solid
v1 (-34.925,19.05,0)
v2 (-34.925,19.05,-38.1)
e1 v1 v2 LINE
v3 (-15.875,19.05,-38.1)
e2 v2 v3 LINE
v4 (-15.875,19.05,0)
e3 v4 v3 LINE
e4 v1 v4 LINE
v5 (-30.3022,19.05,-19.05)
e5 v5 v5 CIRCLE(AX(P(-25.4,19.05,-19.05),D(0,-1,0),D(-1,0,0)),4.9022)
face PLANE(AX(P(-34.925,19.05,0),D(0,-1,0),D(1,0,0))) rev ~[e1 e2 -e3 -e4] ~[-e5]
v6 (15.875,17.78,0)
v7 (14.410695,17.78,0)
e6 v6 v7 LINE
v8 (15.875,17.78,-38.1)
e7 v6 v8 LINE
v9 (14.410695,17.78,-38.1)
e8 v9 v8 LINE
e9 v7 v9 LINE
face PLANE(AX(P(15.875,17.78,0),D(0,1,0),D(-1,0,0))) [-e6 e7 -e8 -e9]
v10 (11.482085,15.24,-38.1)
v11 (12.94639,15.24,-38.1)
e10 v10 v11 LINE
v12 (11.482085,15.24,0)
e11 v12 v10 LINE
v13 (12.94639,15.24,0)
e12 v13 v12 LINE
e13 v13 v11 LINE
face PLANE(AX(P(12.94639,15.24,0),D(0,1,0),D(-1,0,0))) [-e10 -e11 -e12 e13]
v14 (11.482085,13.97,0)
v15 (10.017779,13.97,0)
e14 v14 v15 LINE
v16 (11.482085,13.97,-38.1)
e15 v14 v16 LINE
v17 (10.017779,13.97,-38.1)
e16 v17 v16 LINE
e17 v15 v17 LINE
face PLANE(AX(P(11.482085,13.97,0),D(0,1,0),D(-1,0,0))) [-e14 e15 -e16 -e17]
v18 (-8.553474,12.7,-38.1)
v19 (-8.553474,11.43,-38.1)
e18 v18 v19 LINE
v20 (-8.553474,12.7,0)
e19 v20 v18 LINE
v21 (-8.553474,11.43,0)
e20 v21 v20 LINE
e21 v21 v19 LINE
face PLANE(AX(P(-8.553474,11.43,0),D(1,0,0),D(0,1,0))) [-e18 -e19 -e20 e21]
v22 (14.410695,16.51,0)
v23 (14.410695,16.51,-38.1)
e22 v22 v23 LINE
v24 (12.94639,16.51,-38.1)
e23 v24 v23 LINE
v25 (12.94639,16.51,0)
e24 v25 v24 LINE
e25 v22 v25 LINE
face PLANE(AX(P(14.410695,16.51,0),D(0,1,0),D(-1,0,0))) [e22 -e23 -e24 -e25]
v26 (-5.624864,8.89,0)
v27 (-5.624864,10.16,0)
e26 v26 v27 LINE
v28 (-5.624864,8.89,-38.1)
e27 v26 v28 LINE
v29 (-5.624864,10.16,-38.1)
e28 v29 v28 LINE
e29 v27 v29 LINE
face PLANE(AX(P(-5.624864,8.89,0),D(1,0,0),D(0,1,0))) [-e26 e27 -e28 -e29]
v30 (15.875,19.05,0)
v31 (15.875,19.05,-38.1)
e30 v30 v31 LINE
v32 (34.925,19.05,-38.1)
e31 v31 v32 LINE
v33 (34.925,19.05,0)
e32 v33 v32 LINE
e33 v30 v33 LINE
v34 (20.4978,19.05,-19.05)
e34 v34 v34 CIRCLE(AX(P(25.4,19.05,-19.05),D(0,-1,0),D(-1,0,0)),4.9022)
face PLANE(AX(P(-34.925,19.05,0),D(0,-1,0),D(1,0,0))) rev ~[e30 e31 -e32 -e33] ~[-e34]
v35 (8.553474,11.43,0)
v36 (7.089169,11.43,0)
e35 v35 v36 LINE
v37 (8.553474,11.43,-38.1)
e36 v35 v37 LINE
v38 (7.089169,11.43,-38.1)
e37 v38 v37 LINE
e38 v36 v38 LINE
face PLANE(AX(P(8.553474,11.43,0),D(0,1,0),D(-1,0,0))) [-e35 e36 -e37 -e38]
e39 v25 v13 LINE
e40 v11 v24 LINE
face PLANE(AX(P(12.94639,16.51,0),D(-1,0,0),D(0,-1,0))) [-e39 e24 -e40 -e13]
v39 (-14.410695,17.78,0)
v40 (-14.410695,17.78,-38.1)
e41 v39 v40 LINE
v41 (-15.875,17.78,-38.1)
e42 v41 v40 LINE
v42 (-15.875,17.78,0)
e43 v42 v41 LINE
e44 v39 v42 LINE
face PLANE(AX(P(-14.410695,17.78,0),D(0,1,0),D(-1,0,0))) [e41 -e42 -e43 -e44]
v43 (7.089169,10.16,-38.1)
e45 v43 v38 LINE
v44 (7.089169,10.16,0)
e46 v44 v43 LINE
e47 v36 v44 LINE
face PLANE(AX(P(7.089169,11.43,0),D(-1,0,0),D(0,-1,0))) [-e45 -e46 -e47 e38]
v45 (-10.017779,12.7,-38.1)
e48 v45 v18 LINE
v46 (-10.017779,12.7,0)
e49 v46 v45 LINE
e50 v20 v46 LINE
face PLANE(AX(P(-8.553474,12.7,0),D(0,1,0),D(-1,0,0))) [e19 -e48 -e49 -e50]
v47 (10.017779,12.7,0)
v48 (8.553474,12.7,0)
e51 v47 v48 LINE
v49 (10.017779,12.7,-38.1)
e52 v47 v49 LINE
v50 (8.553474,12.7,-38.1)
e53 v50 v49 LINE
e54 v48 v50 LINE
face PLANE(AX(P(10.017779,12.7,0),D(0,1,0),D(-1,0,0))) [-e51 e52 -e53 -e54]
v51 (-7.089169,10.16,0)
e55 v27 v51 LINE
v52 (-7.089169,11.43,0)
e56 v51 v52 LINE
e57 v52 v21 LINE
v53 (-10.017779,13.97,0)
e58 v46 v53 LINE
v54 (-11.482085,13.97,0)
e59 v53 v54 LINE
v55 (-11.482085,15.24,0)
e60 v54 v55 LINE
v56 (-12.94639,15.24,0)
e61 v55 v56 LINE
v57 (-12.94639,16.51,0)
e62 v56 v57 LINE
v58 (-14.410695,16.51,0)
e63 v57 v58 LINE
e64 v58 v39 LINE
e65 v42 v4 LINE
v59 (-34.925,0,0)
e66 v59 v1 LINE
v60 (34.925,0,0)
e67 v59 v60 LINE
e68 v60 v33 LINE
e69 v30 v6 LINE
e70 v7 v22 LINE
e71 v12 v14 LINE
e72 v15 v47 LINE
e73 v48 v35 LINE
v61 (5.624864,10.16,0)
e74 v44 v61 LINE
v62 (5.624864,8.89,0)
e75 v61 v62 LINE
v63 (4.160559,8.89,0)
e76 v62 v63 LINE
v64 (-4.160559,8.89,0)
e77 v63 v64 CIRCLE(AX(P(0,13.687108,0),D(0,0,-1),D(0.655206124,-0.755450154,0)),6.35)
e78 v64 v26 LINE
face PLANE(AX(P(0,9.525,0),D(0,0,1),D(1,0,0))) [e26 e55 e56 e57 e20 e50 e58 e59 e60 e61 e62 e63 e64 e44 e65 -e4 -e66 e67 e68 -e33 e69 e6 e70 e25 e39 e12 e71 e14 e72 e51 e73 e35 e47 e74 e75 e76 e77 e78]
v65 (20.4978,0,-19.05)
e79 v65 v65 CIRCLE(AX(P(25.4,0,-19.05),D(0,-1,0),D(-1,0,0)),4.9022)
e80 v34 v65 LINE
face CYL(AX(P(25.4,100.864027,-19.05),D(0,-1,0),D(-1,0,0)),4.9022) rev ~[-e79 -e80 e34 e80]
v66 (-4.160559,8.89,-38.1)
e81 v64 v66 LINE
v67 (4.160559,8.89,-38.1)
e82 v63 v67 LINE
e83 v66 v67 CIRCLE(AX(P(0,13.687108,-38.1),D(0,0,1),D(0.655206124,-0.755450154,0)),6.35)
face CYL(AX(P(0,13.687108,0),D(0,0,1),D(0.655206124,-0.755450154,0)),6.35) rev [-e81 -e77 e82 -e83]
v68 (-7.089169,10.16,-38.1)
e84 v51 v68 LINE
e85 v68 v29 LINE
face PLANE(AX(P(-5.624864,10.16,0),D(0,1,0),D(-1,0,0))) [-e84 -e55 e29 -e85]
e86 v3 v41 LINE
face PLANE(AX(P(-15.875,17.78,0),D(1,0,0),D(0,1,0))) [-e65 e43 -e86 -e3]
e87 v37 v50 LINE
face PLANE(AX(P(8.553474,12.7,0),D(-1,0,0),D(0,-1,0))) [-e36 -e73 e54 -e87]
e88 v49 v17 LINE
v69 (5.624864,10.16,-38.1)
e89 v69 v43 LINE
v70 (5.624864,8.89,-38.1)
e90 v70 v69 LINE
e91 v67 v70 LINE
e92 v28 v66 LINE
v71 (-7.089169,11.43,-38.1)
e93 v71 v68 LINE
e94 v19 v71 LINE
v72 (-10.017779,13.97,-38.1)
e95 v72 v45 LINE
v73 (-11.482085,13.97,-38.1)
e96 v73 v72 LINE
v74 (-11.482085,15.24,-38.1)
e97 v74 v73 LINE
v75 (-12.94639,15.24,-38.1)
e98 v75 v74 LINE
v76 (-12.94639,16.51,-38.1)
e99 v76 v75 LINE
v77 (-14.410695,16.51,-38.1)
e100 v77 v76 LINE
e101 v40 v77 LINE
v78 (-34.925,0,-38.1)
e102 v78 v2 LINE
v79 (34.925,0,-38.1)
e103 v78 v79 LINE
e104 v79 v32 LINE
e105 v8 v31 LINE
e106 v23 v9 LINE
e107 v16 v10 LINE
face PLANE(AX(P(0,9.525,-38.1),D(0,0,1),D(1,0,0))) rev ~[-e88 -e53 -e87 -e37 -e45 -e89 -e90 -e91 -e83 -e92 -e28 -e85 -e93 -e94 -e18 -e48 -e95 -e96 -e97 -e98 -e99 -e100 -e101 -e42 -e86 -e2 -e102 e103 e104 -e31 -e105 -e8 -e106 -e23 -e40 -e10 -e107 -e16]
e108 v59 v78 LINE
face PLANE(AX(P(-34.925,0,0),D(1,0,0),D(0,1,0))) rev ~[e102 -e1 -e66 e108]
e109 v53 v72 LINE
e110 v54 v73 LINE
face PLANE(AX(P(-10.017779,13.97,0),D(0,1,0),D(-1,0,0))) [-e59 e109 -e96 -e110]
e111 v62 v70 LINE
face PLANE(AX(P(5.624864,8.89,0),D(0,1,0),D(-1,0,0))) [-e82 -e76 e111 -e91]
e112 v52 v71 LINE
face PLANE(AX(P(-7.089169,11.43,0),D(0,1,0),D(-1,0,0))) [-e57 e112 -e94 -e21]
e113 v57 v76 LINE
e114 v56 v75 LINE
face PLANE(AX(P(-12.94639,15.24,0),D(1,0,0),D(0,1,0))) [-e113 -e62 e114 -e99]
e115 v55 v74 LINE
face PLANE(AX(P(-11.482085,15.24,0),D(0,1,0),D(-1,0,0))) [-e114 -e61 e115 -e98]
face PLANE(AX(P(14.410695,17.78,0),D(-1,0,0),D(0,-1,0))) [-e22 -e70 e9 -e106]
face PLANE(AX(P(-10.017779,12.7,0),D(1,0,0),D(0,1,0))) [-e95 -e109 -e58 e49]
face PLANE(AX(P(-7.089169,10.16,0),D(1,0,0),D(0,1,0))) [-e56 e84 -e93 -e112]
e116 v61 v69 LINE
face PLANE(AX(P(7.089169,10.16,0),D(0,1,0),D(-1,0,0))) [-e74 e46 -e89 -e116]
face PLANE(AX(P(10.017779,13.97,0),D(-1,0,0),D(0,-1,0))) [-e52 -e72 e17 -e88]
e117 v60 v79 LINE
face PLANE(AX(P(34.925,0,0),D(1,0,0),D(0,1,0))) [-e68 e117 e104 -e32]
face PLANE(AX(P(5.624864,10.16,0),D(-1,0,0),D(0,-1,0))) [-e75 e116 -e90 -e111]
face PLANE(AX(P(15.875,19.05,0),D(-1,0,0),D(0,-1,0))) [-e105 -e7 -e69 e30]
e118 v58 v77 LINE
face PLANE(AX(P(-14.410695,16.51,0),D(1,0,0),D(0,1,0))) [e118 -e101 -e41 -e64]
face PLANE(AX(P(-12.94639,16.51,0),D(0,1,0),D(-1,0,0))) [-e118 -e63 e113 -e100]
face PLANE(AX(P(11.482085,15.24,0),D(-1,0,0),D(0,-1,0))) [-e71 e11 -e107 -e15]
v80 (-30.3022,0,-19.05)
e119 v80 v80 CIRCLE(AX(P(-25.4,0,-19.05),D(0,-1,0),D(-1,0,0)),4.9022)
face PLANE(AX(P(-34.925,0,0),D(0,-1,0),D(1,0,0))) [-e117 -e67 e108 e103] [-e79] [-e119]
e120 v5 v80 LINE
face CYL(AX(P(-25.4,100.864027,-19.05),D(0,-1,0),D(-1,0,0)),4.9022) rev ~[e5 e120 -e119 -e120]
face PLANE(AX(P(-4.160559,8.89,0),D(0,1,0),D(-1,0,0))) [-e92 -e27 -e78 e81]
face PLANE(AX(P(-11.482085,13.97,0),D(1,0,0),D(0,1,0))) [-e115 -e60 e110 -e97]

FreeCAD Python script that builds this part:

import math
import FreeCAD as App
import Part
import Sketcher
from FreeCAD import Vector
Q = App.Units.Quantity

doc = App.newDocument("Part")
body = doc.addObject("PartDesign::Body", "Body")

# Sketch on XY plane
sketch1 = body.newObject("Sketcher::SketchObject", "Sketch")
sketch1.AttachmentSupport = (doc.getObject("XY_Plane"), [""])
sketch1.MapMode = "FlatFace"
sketch1.addGeometry(Part.LineSegment(Vector(-34.925, 19.05, 0), Vector(-34.925, 0, 0)), False)
sketch1.addGeometry(Part.LineSegment(Vector(-34.925, 0, 0), Vector(34.925, 0, 0)), False)
sketch1.addGeometry(Part.LineSegment(Vector(34.925, 0, 0), Vector(34.925, 19.05, 0)), False)
sketch1.addGeometry(Part.LineSegment(Vector(34.925, 19.05, 0), Vector(-34.925, 19.05, 0)), False)
sketch1.addConstraint(Sketcher.Constraint("Coincident", 0, 2, 1, 1))
sketch1.addConstraint(Sketcher.Constraint("Coincident", 1, 2, 2, 1))
sketch1.addConstraint(Sketcher.Constraint("Coincident", 2, 2, 3, 1))
sketch1.addConstraint(Sketcher.Constraint("Coincident", 3, 2, 0, 1))
sketch1.addConstraint(Sketcher.Constraint("Vertical", 0))
sketch1.addConstraint(Sketcher.Constraint("Horizontal", 1))
sketch1.addConstraint(Sketcher.Constraint("Vertical", 2))
sketch1.addConstraint(Sketcher.Constraint("Horizontal", 3))
sketch1.addConstraint(Sketcher.Constraint("Symmetric", 0, 2, 1, 2, -1, 1))
sketch1.addConstraint(Sketcher.Constraint("DistanceX", 1, 1, 1, 2, Q("2.75 in")))
sketch1.addConstraint(Sketcher.Constraint("DistanceY", 0, 2, 0, 1, Q("0.75 in")))
pad1 = body.newObject("PartDesign::Pad", "Pad")
pad1.Profile = sketch1
pad1.Length = Q("1.5 in")
pad1.Reversed = True

# Sketch on XY plane
sketch2 = body.newObject("Sketcher::SketchObject", "Sketch001")
sketch2.AttachmentSupport = (doc.getObject("XY_Plane"), [""])
sketch2.MapMode = "FlatFace"
sketch2.addGeometry(Part.LineSegment(Vector(15.875, 19.05, 0), Vector(-15.875, 19.05, 0)), False)
sketch2.addGeometry(Part.LineSegment(Vector(-15.875, 19.05, 0), Vector(-15.875, 17.78, 0)), False)
sketch2.addGeometry(Part.LineSegment(Vector(-15.875, 17.78, 0), Vector(-14.410695, 17.78, 0)), False)
sketch2.addGeometry(Part.LineSegment(Vector(-14.410695, 17.78, 0), Vector(-14.410695, 16.51, 0)), False)
sketch2.addGeometry(Part.LineSegment(Vector(-14.410695, 16.51, 0), Vector(-12.94639, 16.51, 0)), False)
sketch2.addGeometry(Part.LineSegment(Vector(-12.94639, 16.51, 0), Vector(-12.94639, 15.24, 0)), False)
sketch2.addGeometry(Part.LineSegment(Vector(-12.94639, 15.24, 0), Vector(-11.482085, 15.24, 0)), False)
sketch2.addGeometry(Part.LineSegment(Vector(-11.482085, 15.24, 0), Vector(-11.482085, 13.97, 0)), False)
sketch2.addGeometry(Part.LineSegment(Vector(-11.482085, 13.97, 0), Vector(-10.017779, 13.97, 0)), False)
sketch2.addGeometry(Part.LineSegment(Vector(-10.017779, 13.97, 0), Vector(-10.017779, 12.7, 0)), False)
sketch2.addGeometry(Part.LineSegment(Vector(-10.017779, 12.7, 0), Vector(-8.553474, 12.7, 0)), False)
sketch2.addGeometry(Part.LineSegment(Vector(-8.553474, 12.7, 0), Vector(-8.553474, 11.43, 0)), False)
sketch2.addGeometry(Part.LineSegment(Vector(-8.553474, 11.43, 0), Vector(-7.089169, 11.43, 0)), False)
sketch2.addGeometry(Part.LineSegment(Vector(-7.089169, 11.43, 0), Vector(-7.089169, 10.16, 0)), False)
sketch2.addGeometry(Part.LineSegment(Vector(-7.089169, 10.16, 0), Vector(-5.624864, 10.16, 0)), False)
sketch2.addGeometry(Part.LineSegment(Vector(-5.624864, 10.16, 0), Vector(-5.624864, 8.89, 0)), False)
sketch2.addGeometry(Part.LineSegment(Vector(-5.624864, 8.89, 0), Vector(-4.160559, 8.89, 0)), False)
sketch2.addGeometry(Part.ArcOfCircle(Part.Circle(Vector(0, 13.687108, 0), Vector(0, 0, 1), 6.35), math.radians(-130.935281), math.radians(-49.064719)), False)
sketch2.addGeometry(Part.LineSegment(Vector(4.160559, 8.89, 0), Vector(5.624864, 8.89, 0)), False)
sketch2.addGeometry(Part.LineSegment(Vector(5.624864, 8.89, 0), Vector(5.624864, 10.16, 0)), False)
sketch2.addGeometry(Part.LineSegment(Vector(5.624864, 10.16, 0), Vector(7.089169, 10.16, 0)), False)
sketch2.addGeometry(Part.LineSegment(Vector(7.089169, 10.16, 0), Vector(7.089169, 11.43, 0)), False)
sketch2.addGeometry(Part.LineSegment(Vector(7.089169, 11.43, 0), Vector(8.553474, 11.43, 0)), False)
sketch2.addGeometry(Part.LineSegment(Vector(8.553474, 11.43, 0), Vector(8.553474, 12.7, 0)), False)
sketch2.addGeometry(Part.LineSegment(Vector(8.553474, 12.7, 0), Vector(10.017779, 12.7, 0)), False)
sketch2.addGeometry(Part.LineSegment(Vector(10.017779, 12.7, 0), Vector(10.017779, 13.97, 0)), False)
sketch2.addGeometry(Part.LineSegment(Vector(10.017779, 13.97, 0), Vector(11.482085, 13.97, 0)), False)
sketch2.addGeometry(Part.LineSegment(Vector(11.482085, 13.97, 0), Vector(11.482085, 15.24, 0)), False)
sketch2.addGeometry(Part.LineSegment(Vector(11.482085, 15.24, 0), Vector(12.94639, 15.24, 0)), False)
sketch2.addGeometry(Part.LineSegment(Vector(12.94639, 15.24, 0), Vector(12.94639, 16.51, 0)), False)
sketch2.addGeometry(Part.LineSegment(Vector(12.94639, 16.51, 0), Vector(14.410695, 16.51, 0)), False)
sketch2.addGeometry(Part.LineSegment(Vector(14.410695, 16.51, 0), Vector(14.410695, 17.78, 0)), False)
sketch2.addGeometry(Part.LineSegment(Vector(14.410695, 17.78, 0), Vector(15.875, 17.78, 0)), False)
sketch2.addGeometry(Part.LineSegment(Vector(15.875, 17.78, 0), Vector(15.875, 19.05, 0)), False)
sketch2.addConstraint(Sketcher.Constraint("Coincident", 0, 2, 1, 1))
sketch2.addConstraint(Sketcher.Constraint("Coincident", 1, 2, 2, 1))
sketch2.addConstraint(Sketcher.Constraint("Coincident", 2, 2, 3, 1))
sketch2.addConstraint(Sketcher.Constraint("Coincident", 3, 2, 4, 1))
sketch2.addConstraint(Sketcher.Constraint("Coincident", 4, 2, 5, 1))
sketch2.addConstraint(Sketcher.Constraint("Coincident", 5, 2, 6, 1))
sketch2.addConstraint(Sketcher.Constraint("Coincident", 6, 2, 7, 1))
sketch2.addConstraint(Sketcher.Constraint("Coincident", 7, 2, 8, 1))
sketch2.addConstraint(Sketcher.Constraint("Coincident", 8, 2, 9, 1))
sketch2.addConstraint(Sketcher.Constraint("Coincident", 9, 2, 10, 1))
sketch2.addConstraint(Sketcher.Constraint("Coincident", 10, 2, 11, 1))
sketch2.addConstraint(Sketcher.Constraint("Coincident", 11, 2, 12, 1))
sketch2.addConstraint(Sketcher.Constraint("Coincident", 12, 2, 13, 1))
sketch2.addConstraint(Sketcher.Constraint("Coincident", 13, 2, 14, 1))
sketch2.addConstraint(Sketcher.Constraint("Coincident", 14, 2, 15, 1))
sketch2.addConstraint(Sketcher.Constraint("Coincident", 15, 2, 16, 1))
sketch2.addConstraint(Sketcher.Constraint("Coincident", 16, 2, 17, 1))
sketch2.addConstraint(Sketcher.Constraint("Coincident", 17, 2, 18, 1))
sketch2.addConstraint(Sketcher.Constraint("Coincident", 18, 2, 19, 1))
sketch2.addConstraint(Sketcher.Constraint("Coincident", 19, 2, 20, 1))
sketch2.addConstraint(Sketcher.Constraint("Coincident", 20, 2, 21, 1))
sketch2.addConstraint(Sketcher.Constraint("Coincident", 21, 2, 22, 1))
sketch2.addConstraint(Sketcher.Constraint("Coincident", 22, 2, 23, 1))
sketch2.addConstraint(Sketcher.Constraint("Coincident", 23, 2, 24, 1))
sketch2.addConstraint(Sketcher.Constraint("Coincident", 24, 2, 25, 1))
sketch2.addConstraint(Sketcher.Constraint("Coincident", 25, 2, 26, 1))
sketch2.addConstraint(Sketcher.Constraint("Coincident", 26, 2, 27, 1))
sketch2.addConstraint(Sketcher.Constraint("Coincident", 27, 2, 28, 1))
sketch2.addConstraint(Sketcher.Constraint("Coincident", 28, 2, 29, 1))
sketch2.addConstraint(Sketcher.Constraint("Coincident", 29, 2, 30, 1))
sketch2.addConstraint(Sketcher.Constraint("Coincident", 30, 2, 31, 1))
sketch2.addConstraint(Sketcher.Constraint("Coincident", 31, 2, 32, 1))
sketch2.addConstraint(Sketcher.Constraint("Coincident", 32, 2, 33, 1))
sketch2.addConstraint(Sketcher.Constraint("Coincident", 33, 2, 0, 1))
sketch2.addConstraint(Sketcher.Constraint("Horizontal", 0))
sketch2.addConstraint(Sketcher.Constraint("Vertical", 1))
sketch2.addConstraint(Sketcher.Constraint("Horizontal", 2))
sketch2.addConstraint(Sketcher.Constraint("Vertical", 3))
sketch2.addConstraint(Sketcher.Constraint("Horizontal", 4))
sketch2.addConstraint(Sketcher.Constraint("Vertical", 5))
sketch2.addConstraint(Sketcher.Constraint("Horizontal", 6))
sketch2.addConstraint(Sketcher.Constraint("Vertical", 7))
sketch2.addConstraint(Sketcher.Constraint("Horizontal", 8))
sketch2.addConstraint(Sketcher.Constraint("Vertical", 9))
sketch2.addConstraint(Sketcher.Constraint("Horizontal", 10))
sketch2.addConstraint(Sketcher.Constraint("Vertical", 11))
sketch2.addConstraint(Sketcher.Constraint("Horizontal", 12))
sketch2.addConstraint(Sketcher.Constraint("Vertical", 13))
sketch2.addConstraint(Sketcher.Constraint("Horizontal", 14))
sketch2.addConstraint(Sketcher.Constraint("Vertical", 15))
sketch2.addConstraint(Sketcher.Constraint("Horizontal", 16))
sketch2.addConstraint(Sketcher.Constraint("Horizontal", 18))
sketch2.addConstraint(Sketcher.Constraint("Vertical", 19))
sketch2.addConstraint(Sketcher.Constraint("Horizontal", 20))
sketch2.addConstraint(Sketcher.Constraint("Vertical", 21))
sketch2.addConstraint(Sketcher.Constraint("Horizontal", 22))
sketch2.addConstraint(Sketcher.Constraint("Vertical", 23))
sketch2.addConstraint(Sketcher.Constraint("Horizontal", 24))
sketch2.addConstraint(Sketcher.Constraint("Vertical", 25))
sketch2.addConstraint(Sketcher.Constraint("Horizontal", 26))
sketch2.addConstraint(Sketcher.Constraint("Vertical", 27))
sketch2.addConstraint(Sketcher.Constraint("Horizontal", 28))
sketch2.addConstraint(Sketcher.Constraint("Vertical", 29))
sketch2.addConstraint(Sketcher.Constraint("Horizontal", 30))
sketch2.addConstraint(Sketcher.Constraint("Vertical", 31))
sketch2.addConstraint(Sketcher.Constraint("Horizontal", 32))
sketch2.addConstraint(Sketcher.Constraint("Vertical", 33))
sketch2.addConstraint(Sketcher.Constraint("Symmetric", 16, 2, 17, 2, -2))
sketch2.addConstraint(Sketcher.Constraint("Symmetric", 14, 2, 19, 2, -2))
sketch2.addConstraint(Sketcher.Constraint("Symmetric", 12, 2, 21, 2, -2))
sketch2.addConstraint(Sketcher.Constraint("Symmetric", 10, 2, 23, 2, -2))
sketch2.addConstraint(Sketcher.Constraint("Symmetric", 8, 2, 25, 2, -2))
sketch2.addConstraint(Sketcher.Constraint("Symmetric", 6, 2, 27, 2, -2))
sketch2.addConstraint(Sketcher.Constraint("Symmetric", 4, 2, 29, 2, -2))
sketch2.addConstraint(Sketcher.Constraint("Symmetric", 2, 2, 31, 2, -2))
sketch2.addConstraint(Sketcher.Constraint("Equal", 2, 4))
sketch2.addConstraint(Sketcher.Constraint("Equal", 4, 6))
sketch2.addConstraint(Sketcher.Constraint("Equal", 6, 8))
sketch2.addConstraint(Sketcher.Constraint("Equal", 8, 10))
sketch2.addConstraint(Sketcher.Constraint("Equal", 10, 12))
sketch2.addConstraint(Sketcher.Constraint("Equal", 12, 14))
sketch2.addConstraint(Sketcher.Constraint("Equal", 14, 16))
sketch2.addConstraint(Sketcher.Constraint("Equal", 30, 32))
sketch2.addConstraint(Sketcher.Constraint("Equal", 1, 3))
sketch2.addConstraint(Sketcher.Constraint("Equal", 3, 5))
sketch2.addConstraint(Sketcher.Constraint("Equal", 5, 7))
sketch2.addConstraint(Sketcher.Constraint("Equal", 7, 9))
sketch2.addConstraint(Sketcher.Constraint("Equal", 9, 11))
sketch2.addConstraint(Sketcher.Constraint("Equal", 11, 13))
sketch2.addConstraint(Sketcher.Constraint("Equal", 13, 15))
sketch2.addConstraint(Sketcher.Constraint("Radius", 17, Q("0.25 in")))
sketch2.addConstraint(Sketcher.Constraint("DistanceX", 0, 2, 0, 1, Q("1.25 in")))
sketch2.addConstraint(Sketcher.Constraint("DistanceY", 1, 2, 1, 1, Q("0.05 in")))
sketch2.addConstraint(Sketcher.Constraint("DistanceY", -1, 1, 1, 2, Q("0.7 in")))
sketch2.addConstraint(Sketcher.Constraint("DistanceX", 2, 1, 2, 2, 1.464305))
pocket1 = body.newObject("PartDesign::Pocket", "Pocket")
pocket1.Profile = sketch2
pocket1.Type = "UpToFirst"

# Sketch on XZ plane
sketch3 = body.newObject("Sketcher::SketchObject", "Sketch002")
sketch3.AttachmentSupport = (doc.getObject("XZ_Plane"), [""])
sketch3.MapMode = "FlatFace"
sketch3.AttachmentOffset = App.Placement(Vector(0, 0, -0.75 * 25.4), App.Rotation())
sketch3.addGeometry(Part.Circle(Vector(-25.4, -19.05, 0), Vector(0, 0, 1), 4.9022), False)
sketch3.addGeometry(Part.Circle(Vector(25.4, -19.05, 0), Vector(0, 0, 1), 4.9022), False)
sketch3.addConstraint(Sketcher.Constraint("Equal", 0, 1))
sketch3.addConstraint(Sketcher.Constraint("Symmetric", 0, 3, 1, 3, -2))
sketch3.addConstraint(Sketcher.Constraint("Diameter", 0, Q("0.386 in")))
sketch3.addConstraint(Sketcher.Constraint("DistanceX", 0, 3, -1, 1, Q("1 in")))
sketch3.addConstraint(Sketcher.Constraint("DistanceY", 0, 3, -1, 1, Q("0.75 in")))
doc.recompute()
hole = body.newObject("PartDesign::Hole", "Hole")
hole.Profile = sketch3
hole.ThreadType = "None"
hole.Diameter = Q("0.386 in")
hole.DepthType = "ThroughAll"
hole.Reversed = True

doc.recompute()
